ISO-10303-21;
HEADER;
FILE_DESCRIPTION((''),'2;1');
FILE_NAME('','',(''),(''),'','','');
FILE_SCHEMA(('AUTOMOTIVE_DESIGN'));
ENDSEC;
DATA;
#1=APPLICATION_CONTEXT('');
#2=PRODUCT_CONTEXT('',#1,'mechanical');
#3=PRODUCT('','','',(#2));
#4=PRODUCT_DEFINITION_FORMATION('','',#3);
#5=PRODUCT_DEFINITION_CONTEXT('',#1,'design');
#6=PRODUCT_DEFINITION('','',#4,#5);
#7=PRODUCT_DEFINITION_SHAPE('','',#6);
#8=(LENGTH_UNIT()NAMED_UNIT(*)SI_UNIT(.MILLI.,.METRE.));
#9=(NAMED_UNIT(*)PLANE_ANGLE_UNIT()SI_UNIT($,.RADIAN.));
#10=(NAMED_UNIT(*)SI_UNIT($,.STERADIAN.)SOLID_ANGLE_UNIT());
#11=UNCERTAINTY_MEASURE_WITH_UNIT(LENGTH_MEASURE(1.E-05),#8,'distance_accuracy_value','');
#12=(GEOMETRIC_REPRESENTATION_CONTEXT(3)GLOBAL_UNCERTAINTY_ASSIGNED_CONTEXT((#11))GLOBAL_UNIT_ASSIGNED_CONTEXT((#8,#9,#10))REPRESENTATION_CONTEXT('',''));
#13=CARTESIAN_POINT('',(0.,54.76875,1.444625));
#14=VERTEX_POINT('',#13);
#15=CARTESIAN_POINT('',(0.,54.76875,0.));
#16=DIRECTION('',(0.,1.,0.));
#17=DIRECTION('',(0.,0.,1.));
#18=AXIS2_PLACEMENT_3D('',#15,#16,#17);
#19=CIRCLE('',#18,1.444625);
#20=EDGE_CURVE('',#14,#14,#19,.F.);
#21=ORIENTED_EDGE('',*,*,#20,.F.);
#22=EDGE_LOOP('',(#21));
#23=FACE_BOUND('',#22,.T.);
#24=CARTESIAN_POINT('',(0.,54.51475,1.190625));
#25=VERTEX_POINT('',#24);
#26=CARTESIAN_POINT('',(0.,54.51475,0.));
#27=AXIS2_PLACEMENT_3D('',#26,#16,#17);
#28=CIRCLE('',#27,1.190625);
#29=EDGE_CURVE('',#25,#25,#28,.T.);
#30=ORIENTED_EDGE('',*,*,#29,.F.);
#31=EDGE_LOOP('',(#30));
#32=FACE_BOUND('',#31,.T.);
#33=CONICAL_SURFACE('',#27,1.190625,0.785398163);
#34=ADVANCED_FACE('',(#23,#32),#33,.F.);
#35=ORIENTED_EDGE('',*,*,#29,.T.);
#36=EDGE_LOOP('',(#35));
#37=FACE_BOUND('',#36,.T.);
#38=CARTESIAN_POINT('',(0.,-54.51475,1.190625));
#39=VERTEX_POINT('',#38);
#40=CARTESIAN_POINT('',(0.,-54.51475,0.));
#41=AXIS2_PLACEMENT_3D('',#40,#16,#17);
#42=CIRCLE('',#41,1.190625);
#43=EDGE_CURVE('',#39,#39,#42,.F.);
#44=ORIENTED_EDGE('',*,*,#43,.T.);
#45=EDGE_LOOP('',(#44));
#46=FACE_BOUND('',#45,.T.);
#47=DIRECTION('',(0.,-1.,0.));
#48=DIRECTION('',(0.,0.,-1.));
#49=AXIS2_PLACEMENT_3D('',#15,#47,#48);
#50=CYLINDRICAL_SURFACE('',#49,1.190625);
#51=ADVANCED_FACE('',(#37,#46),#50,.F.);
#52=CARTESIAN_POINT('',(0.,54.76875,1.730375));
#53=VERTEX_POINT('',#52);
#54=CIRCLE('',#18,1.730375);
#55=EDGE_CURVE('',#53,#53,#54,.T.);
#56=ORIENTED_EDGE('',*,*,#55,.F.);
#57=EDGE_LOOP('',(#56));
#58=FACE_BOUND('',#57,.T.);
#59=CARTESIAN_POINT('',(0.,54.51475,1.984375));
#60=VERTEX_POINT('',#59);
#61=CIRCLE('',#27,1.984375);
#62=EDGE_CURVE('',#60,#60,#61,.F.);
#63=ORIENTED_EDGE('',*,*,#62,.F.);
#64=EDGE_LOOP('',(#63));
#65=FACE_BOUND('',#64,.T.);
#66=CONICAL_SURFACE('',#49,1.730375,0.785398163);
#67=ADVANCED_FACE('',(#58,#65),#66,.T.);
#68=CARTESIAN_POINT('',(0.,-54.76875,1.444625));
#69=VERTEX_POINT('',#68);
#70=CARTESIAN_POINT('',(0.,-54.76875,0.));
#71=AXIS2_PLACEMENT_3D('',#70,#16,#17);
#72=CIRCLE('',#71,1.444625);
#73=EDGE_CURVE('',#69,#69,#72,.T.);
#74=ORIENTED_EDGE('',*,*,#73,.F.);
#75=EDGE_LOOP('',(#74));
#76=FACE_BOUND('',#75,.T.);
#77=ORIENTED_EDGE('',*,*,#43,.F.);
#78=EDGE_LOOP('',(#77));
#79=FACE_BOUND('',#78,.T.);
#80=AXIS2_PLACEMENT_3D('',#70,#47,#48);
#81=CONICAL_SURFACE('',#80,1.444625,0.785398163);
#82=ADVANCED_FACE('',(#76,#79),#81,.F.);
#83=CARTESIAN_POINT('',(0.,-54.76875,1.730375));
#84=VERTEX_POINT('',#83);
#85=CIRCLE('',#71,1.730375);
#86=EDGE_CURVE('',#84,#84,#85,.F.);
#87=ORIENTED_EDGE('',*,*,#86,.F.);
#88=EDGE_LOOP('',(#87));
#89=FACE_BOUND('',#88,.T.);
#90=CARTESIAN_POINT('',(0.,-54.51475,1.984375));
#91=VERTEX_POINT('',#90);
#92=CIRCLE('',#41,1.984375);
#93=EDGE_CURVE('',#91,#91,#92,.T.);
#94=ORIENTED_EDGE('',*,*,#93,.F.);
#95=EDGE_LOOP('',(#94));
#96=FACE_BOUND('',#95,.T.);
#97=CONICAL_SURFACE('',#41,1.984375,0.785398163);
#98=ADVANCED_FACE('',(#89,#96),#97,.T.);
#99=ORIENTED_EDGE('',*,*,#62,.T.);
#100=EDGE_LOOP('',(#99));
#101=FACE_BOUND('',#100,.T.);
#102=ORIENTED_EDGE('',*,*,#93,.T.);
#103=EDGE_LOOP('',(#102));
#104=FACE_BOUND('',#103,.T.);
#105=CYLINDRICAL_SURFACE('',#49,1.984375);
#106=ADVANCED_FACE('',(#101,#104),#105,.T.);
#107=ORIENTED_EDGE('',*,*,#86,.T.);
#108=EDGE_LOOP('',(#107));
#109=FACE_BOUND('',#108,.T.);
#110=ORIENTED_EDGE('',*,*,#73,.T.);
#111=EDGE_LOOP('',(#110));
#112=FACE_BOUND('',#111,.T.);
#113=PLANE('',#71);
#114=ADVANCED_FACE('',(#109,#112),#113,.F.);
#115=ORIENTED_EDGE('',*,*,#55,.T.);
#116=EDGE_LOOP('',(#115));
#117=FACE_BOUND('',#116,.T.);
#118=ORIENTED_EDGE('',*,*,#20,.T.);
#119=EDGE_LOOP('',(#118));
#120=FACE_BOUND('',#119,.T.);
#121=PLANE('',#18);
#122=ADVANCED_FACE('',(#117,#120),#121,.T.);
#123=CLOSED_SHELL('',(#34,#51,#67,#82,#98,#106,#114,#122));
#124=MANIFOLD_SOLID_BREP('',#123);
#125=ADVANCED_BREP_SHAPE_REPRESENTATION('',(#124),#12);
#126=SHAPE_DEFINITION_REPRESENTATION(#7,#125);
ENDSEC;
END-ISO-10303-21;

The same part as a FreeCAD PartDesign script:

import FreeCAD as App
import Part
import Sketcher

V = App.Vector
Q = App.Units.Quantity


def edges_at(feature, points):
    """Names of the edges that pass closest to the given points."""
    edges = feature.Shape.Edges
    near = lambda p: min(range(len(edges)), key=lambda i: edges[i].distToShape(Part.Vertex(*p))[0])
    return sorted({f"Edge{near(p) + 1}" for p in points})

doc = App.newDocument("Part")
body = doc.addObject("PartDesign::Body", "Body")

# Sketch on XZ plane
sketch1 = body.newObject("Sketcher::SketchObject", "Sketch")
sketch1.AttachmentSupport = (doc.getObject("XZ_Plane"), [""])
sketch1.MapMode = "FlatFace"
sketch1.addGeometry([
    Part.Circle(V(0, 0, 0), V(0, 0, 1), 2),
    Part.Circle(V(0, 0, 0), V(0, 0, 1), 1.2),
], False)
sketch1.addConstraint([
    Sketcher.Constraint("Coincident", 0, 3, -1, 1),
    Sketcher.Constraint("Coincident", 1, 3, -1, 1),
    Sketcher.Constraint("Diameter", 0, Q("0.15625 in")),
    Sketcher.Constraint("Diameter", 1, Q("0.09375 in")),
])
pad1 = body.newObject("PartDesign::Pad", "Pad")
pad1.Profile = sketch1
pad1.Length = Q("4.3125 in")
pad1.Midplane = True
doc.recompute()

chamfer = body.newObject("PartDesign::Chamfer", "Chamfer")
chamfer.Base = (pad1, edges_at(pad1, [
    (-1.984, -54.769, 0),
    (-1.984, 54.769, 0),
    (-1.191, -54.769, 0),
    (-1.191, 54.769, 0),
]))
chamfer.Size = Q("0.01 in")

doc.recompute()
